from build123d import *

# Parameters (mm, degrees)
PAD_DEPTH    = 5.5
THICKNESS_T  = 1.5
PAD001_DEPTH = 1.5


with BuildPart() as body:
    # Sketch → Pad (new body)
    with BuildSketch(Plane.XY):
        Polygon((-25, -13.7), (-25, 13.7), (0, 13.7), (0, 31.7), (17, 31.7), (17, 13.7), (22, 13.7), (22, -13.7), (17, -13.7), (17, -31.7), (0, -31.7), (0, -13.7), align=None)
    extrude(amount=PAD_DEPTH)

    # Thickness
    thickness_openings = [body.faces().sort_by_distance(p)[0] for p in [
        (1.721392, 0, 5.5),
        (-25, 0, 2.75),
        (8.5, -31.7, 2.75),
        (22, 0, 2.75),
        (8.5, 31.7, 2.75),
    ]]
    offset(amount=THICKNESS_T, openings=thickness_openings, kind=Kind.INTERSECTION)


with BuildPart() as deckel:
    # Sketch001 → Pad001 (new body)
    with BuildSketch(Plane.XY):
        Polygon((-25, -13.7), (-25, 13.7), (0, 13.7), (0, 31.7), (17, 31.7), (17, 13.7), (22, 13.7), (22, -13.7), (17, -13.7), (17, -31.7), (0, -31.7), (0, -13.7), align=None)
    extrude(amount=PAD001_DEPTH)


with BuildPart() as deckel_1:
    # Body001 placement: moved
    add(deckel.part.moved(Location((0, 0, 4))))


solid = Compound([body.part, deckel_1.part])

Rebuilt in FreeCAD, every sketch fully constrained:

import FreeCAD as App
import Part
import Sketcher
from FreeCAD import Vector
Q = App.Units.Quantity


def faces_at(feature, points):
    """Names of the faces that lie closest to the given points."""
    faces = feature.Shape.Faces
    near = lambda p: min(range(len(faces)), key=lambda i: faces[i].distToShape(Part.Vertex(*p))[0])
    return sorted({f"Face{near(p) + 1}" for p in points})


def add_polygon(sketch, points):
    """Adds a closed chain of lines whose ends are joined by coincident constraints."""
    first, n = sketch.GeometryCount, len(points)
    for a, b in zip(points, points[1:] + points[:1]):
        sketch.addGeometry(Part.LineSegment(App.Vector(*a, 0), App.Vector(*b, 0)), False)
    for i in range(n):
        sketch.addConstraint(Sketcher.Constraint("Coincident", first + i, 2, first + (i + 1) % n, 1))

doc = App.newDocument("Part")
body = doc.addObject("PartDesign::Body", "Body")

sketch1 = body.newObject("Sketcher::SketchObject", "Sketch")
sketch1.AttachmentSupport = (doc.getObject("XY_Plane"), [""])
sketch1.MapMode = "FlatFace"
add_polygon(sketch1, [(-25, 14), (-25, -14), (0, -14), (0, -32), (17, -32), (17, -14), (22, -14), (22, 14), (17, 14), (17, 32), (0, 32), (0, 14)])
sketch1.addConstraint([
    Sketcher.Constraint("Vertical", 0),
    Sketcher.Constraint("Horizontal", 1),
    Sketcher.Constraint("Vertical", 2),
    Sketcher.Constraint("Horizontal", 3),
    Sketcher.Constraint("Vertical", 4),
    Sketcher.Constraint("Horizontal", 5),
    Sketcher.Constraint("Vertical", 6),
    Sketcher.Constraint("Horizontal", 7),
    Sketcher.Constraint("Vertical", 8),
    Sketcher.Constraint("Horizontal", 9),
    Sketcher.Constraint("Vertical", 10),
    Sketcher.Constraint("Horizontal", 11),
    Sketcher.Constraint("Symmetric", 2, 2, 9, 2, -1, 1),
    Sketcher.Constraint("Symmetric", 4, 2, 7, 2, -1),
    Sketcher.Constraint("Symmetric", 1, 2, 10, 2, -1),
    Sketcher.Constraint("Horizontal", 1, 2, 4, 2),
    Sketcher.Constraint("DistanceX", 1, 1, 1, 2, Q("25 mm")),
    Sketcher.Constraint("DistanceX", 3, 1, 3, 2, Q("17 mm")),
    Sketcher.Constraint("DistanceX", 5, 1, 5, 2, Q("5 mm")),
    Sketcher.Constraint("DistanceY", 2, 2, 2, 1, Q("18 mm")),
    Sketcher.Constraint("DistanceY", 0, 2, 0, 1, Q("27.4 mm")),
])
pad1 = body.newObject("PartDesign::Pad", "Pad")
pad1.Profile = sketch1
pad1.Length = 5.5
doc.recompute()

thickness = body.newObject("PartDesign::Thickness", "Thickness")
thickness.Base = (pad1, faces_at(pad1, [
    (-1.5, 0, 5.5),
    (-25, 0, 2.75),
    (8.5, -31.7, 2.75),
    (22, 0, 2.75),
    (8.5, 31.7, 2.75),
]))
thickness.Value = 1.5
thickness.Reversed = False
thickness.Join = "Intersection"
body2 = doc.addObject("PartDesign::Body", "Body001")

sketch2 = body2.newObject("Sketcher::SketchObject", "Sketch001")
sketch2.AttachmentSupport = (doc.getObject("XY_Plane001"), [""])
sketch2.MapMode = "FlatFace"
add_polygon(sketch2, [(-25, 14), (-25, -14), (0, -14), (0, -32), (17, -32), (17, -14), (22, -14), (22, 14), (17, 14), (17, 32), (0, 32), (0, 14)])
sketch2.addConstraint([
    Sketcher.Constraint("Vertical", 0),
    Sketcher.Constraint("Horizontal", 1),
    Sketcher.Constraint("Vertical", 2),
    Sketcher.Constraint("Horizontal", 3),
    Sketcher.Constraint("Vertical", 4),
    Sketcher.Constraint("Horizontal", 5),
    Sketcher.Constraint("Vertical", 6),
    Sketcher.Constraint("Horizontal", 7),
    Sketcher.Constraint("Vertical", 8),
    Sketcher.Constraint("Horizontal", 9),
    Sketcher.Constraint("Vertical", 10),
    Sketcher.Constraint("Horizontal", 11),
    Sketcher.Constraint("Symmetric", 2, 2, 9, 2, -1, 1),
    Sketcher.Constraint("Symmetric", 4, 2, 7, 2, -1),
    Sketcher.Constraint("Symmetric", 1, 2, 10, 2, -1),
    Sketcher.Constraint("Horizontal", 1, 2, 4, 2),
    Sketcher.Constraint("DistanceX", 1, 1, 1, 2, Q("25 mm")),
    Sketcher.Constraint("DistanceX", 3, 1, 3, 2, Q("17 mm")),
    Sketcher.Constraint("DistanceX", 5, 1, 5, 2, Q("5 mm")),
    Sketcher.Constraint("DistanceY", 2, 2, 2, 1, Q("18 mm")),
    Sketcher.Constraint("DistanceY", 0, 2, 0, 1, Q("27.4 mm")),
])
pad2 = body2.newObject("PartDesign::Pad", "Pad001")
pad2.Profile = sketch2
pad2.Length = 1.5
body3 = doc.addObject("PartDesign::Body", "Body002")
doc.recompute()

body2.Placement = App.Placement(Vector(0, 0, 4), App.Rotation(Vector(0, 0, 1), 0))
boolean = body3.newObject("PartDesign::Boolean", "Boolean")
boolean.Type = "Fuse"
boolean.addObjects([body2])

doc.recompute()
